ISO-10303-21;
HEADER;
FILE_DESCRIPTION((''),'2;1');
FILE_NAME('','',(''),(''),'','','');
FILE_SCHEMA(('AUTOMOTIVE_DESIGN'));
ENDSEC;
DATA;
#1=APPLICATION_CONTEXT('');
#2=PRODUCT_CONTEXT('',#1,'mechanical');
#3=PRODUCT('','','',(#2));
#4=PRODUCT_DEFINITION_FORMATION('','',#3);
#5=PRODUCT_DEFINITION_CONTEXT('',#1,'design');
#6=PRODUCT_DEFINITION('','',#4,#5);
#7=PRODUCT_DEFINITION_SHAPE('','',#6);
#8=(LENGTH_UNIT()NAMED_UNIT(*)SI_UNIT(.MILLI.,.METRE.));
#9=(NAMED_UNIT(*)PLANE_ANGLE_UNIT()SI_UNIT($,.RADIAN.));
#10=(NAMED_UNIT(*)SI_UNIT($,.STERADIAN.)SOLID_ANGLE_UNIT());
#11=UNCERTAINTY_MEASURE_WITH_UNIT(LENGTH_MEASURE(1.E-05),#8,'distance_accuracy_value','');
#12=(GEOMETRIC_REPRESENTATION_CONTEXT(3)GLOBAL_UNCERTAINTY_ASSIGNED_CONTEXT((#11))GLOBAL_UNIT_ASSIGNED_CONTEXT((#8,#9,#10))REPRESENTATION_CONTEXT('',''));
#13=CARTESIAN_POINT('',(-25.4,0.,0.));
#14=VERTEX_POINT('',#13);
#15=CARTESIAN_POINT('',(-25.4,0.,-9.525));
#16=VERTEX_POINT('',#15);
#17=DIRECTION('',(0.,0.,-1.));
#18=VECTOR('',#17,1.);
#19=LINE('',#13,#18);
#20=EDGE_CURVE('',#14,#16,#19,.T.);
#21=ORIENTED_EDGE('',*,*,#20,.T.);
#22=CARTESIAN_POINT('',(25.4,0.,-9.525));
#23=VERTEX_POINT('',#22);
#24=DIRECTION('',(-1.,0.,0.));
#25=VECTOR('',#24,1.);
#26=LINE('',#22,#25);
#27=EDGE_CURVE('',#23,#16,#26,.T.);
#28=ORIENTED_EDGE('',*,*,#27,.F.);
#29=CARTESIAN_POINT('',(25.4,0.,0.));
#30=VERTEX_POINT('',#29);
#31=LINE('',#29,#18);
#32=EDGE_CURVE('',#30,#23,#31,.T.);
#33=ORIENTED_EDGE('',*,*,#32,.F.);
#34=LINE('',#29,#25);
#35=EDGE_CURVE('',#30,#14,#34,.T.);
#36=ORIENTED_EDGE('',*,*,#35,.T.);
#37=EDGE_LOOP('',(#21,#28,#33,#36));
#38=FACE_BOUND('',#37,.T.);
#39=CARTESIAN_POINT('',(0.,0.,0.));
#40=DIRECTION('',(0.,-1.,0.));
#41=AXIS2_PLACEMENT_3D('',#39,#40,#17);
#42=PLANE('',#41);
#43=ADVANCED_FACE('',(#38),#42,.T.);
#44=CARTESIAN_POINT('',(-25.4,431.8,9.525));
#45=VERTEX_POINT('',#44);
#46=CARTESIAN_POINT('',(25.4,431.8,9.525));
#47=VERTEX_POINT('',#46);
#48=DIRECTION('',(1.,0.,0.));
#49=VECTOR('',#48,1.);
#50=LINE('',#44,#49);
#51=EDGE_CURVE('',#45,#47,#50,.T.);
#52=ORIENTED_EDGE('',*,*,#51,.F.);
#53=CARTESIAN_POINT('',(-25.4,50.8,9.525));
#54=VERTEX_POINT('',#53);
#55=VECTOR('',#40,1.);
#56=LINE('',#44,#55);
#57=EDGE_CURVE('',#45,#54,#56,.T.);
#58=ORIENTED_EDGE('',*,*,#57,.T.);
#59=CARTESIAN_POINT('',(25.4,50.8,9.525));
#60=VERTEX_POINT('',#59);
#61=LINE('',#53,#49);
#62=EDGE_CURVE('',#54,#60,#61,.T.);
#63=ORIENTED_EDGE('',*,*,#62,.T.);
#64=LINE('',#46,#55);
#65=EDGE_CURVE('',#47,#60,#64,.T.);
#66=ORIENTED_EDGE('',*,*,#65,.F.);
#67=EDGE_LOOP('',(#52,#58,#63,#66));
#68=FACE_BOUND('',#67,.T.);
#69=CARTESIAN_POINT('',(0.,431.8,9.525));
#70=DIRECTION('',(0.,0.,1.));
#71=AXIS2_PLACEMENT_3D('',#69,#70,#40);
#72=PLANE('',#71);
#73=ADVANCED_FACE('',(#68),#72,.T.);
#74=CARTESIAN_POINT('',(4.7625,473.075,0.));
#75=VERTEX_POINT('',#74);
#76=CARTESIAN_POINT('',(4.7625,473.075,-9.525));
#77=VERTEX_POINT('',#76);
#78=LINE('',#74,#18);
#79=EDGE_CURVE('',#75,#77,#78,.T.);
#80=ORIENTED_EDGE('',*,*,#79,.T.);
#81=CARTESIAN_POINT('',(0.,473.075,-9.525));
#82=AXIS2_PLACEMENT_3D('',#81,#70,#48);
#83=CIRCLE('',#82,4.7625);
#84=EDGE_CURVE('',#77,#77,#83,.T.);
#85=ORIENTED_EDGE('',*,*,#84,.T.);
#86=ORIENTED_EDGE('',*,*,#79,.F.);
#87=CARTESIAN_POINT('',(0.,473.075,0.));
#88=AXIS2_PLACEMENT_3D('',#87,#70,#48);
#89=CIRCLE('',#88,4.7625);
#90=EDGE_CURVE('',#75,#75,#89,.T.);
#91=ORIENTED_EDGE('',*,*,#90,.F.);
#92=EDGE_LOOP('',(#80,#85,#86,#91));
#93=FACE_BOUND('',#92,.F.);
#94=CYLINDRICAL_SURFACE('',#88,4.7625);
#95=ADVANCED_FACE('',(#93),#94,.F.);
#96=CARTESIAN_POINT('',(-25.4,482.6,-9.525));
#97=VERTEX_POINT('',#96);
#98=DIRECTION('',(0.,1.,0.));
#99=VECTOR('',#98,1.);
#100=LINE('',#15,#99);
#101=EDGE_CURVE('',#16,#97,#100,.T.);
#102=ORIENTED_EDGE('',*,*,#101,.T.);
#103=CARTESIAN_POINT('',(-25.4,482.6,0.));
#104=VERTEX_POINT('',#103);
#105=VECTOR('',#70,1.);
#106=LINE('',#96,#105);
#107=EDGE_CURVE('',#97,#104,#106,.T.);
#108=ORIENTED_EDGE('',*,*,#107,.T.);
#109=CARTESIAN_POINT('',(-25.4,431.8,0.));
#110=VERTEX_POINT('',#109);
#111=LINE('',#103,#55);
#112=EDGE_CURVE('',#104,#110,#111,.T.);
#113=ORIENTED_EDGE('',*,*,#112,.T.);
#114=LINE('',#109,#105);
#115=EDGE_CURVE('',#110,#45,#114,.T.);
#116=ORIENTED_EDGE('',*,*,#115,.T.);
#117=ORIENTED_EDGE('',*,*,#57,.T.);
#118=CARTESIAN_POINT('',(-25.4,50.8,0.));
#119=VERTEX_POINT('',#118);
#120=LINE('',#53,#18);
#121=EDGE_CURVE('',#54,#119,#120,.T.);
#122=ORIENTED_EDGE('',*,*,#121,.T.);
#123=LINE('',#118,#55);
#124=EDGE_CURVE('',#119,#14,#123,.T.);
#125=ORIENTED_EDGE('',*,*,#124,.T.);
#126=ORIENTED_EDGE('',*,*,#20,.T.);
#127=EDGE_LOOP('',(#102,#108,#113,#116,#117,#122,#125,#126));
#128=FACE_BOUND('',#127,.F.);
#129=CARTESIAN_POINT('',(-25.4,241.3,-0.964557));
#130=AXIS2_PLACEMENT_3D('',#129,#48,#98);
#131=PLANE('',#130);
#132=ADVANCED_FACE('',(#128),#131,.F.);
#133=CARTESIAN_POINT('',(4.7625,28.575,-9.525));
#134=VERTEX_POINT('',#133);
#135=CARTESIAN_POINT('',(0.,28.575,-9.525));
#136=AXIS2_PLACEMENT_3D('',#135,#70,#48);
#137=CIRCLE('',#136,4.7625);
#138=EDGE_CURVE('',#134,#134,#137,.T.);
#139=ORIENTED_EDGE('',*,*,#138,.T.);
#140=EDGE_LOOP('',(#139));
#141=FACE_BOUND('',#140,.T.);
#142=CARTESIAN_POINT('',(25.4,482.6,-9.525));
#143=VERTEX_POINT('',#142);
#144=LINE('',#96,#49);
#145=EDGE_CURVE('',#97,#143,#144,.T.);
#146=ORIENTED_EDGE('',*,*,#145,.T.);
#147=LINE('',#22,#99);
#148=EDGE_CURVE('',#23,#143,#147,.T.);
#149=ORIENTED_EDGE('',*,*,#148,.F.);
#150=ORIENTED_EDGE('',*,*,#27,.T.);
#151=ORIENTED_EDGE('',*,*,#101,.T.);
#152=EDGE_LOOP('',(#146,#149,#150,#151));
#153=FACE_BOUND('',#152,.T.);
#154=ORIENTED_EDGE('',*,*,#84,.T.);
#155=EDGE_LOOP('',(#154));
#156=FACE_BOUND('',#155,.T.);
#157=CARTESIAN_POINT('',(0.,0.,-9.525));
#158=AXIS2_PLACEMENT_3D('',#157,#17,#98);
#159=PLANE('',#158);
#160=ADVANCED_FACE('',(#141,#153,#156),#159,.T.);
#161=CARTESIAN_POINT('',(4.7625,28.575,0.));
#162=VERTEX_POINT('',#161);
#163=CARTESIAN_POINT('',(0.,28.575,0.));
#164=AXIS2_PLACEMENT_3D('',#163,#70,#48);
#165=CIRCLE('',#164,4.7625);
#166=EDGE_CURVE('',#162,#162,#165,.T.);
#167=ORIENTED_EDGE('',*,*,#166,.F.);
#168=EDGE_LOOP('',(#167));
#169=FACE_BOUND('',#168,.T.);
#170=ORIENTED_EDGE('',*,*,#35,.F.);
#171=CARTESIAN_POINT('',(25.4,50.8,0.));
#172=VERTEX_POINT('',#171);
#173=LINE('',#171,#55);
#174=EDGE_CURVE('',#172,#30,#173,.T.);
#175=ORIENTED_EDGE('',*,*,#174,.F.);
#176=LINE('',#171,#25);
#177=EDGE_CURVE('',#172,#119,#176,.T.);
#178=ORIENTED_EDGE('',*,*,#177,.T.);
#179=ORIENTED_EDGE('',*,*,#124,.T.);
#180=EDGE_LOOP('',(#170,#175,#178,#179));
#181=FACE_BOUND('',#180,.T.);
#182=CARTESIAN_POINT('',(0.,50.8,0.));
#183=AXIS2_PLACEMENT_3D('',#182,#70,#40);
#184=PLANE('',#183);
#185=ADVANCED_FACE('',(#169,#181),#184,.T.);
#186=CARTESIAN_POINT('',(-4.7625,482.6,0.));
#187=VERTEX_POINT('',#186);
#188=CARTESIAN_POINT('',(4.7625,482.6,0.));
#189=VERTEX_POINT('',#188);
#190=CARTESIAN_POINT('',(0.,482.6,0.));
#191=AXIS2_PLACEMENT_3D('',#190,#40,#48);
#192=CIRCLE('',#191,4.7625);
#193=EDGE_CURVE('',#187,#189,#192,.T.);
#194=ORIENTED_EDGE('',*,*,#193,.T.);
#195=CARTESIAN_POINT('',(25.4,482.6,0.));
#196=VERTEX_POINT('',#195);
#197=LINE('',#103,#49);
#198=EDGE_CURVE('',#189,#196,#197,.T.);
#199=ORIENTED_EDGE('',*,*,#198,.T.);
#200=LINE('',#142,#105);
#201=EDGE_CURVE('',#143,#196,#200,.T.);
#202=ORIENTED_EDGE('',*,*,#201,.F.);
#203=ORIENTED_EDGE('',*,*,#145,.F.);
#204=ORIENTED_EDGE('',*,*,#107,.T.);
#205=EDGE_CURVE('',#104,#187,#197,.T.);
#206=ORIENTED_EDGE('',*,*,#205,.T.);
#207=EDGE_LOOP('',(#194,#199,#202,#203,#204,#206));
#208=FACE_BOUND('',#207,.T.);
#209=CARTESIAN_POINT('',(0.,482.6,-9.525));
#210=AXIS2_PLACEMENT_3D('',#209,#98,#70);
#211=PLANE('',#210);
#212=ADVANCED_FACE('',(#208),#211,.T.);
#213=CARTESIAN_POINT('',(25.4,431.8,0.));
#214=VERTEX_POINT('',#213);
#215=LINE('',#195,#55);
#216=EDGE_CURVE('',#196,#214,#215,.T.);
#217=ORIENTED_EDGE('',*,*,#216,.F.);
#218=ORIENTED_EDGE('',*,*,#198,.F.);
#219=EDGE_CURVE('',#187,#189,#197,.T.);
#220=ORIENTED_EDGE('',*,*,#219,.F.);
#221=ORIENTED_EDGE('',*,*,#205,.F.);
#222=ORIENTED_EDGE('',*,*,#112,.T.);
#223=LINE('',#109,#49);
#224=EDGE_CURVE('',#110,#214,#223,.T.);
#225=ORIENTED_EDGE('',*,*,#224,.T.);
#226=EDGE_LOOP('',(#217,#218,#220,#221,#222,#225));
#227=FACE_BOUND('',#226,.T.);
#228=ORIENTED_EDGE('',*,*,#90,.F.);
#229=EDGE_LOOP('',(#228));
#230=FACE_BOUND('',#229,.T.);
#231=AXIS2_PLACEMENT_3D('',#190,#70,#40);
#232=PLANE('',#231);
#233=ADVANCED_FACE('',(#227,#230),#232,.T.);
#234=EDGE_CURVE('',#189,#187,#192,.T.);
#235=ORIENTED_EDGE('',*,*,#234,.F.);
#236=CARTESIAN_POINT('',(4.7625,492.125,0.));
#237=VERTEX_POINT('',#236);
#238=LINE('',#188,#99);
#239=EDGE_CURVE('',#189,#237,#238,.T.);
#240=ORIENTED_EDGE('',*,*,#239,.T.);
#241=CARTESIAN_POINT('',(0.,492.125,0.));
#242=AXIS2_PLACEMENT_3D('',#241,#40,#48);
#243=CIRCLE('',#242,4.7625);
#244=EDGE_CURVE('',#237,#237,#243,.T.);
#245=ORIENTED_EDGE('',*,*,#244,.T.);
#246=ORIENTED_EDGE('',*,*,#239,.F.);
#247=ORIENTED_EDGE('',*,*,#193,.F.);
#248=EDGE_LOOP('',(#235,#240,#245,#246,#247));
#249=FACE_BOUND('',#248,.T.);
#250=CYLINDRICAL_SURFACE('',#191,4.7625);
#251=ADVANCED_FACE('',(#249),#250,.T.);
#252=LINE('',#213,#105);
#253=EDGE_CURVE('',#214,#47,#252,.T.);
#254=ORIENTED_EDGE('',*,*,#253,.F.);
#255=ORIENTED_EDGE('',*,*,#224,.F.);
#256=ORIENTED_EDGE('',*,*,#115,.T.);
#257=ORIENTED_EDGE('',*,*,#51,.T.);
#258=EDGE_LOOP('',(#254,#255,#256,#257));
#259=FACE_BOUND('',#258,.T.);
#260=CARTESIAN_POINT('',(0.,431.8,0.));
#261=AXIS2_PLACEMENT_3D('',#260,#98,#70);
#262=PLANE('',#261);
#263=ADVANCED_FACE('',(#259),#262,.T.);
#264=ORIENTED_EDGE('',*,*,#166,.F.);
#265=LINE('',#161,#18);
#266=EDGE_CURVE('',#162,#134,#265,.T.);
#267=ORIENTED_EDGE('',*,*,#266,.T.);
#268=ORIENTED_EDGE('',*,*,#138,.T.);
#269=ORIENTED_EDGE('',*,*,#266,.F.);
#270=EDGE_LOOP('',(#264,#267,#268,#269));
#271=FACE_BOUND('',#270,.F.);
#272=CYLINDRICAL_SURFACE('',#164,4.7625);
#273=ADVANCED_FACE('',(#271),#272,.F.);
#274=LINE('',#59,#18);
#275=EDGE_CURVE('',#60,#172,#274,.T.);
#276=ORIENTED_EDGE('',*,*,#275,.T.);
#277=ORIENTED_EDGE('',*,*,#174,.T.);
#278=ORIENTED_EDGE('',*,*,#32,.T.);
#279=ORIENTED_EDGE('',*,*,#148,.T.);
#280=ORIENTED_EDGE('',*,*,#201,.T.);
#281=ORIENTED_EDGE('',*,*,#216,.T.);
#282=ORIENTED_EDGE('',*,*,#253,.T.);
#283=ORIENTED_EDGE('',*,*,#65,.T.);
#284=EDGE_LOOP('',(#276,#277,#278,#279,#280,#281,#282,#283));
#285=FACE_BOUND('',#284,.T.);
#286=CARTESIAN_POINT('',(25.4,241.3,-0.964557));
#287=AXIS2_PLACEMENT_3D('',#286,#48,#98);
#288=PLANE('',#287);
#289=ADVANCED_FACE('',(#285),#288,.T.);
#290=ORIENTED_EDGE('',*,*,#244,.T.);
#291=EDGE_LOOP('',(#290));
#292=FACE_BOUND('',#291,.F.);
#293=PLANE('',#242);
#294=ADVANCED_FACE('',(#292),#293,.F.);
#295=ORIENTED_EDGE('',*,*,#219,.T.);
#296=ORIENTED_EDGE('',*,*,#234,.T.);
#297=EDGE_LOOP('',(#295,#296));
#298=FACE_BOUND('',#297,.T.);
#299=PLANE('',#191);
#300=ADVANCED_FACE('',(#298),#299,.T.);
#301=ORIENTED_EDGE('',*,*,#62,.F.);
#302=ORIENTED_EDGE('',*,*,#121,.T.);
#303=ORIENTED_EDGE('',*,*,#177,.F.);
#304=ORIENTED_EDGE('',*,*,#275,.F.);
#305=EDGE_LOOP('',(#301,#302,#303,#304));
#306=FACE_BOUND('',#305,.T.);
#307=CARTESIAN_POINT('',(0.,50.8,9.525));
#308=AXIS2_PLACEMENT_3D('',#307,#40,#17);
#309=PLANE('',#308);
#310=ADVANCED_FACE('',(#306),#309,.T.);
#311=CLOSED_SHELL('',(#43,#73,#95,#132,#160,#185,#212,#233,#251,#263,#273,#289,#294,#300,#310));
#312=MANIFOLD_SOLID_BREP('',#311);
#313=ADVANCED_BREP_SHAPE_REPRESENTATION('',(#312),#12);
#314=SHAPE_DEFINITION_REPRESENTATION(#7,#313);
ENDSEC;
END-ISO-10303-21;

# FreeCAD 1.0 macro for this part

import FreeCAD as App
import Part
import Sketcher

V = App.Vector
Q = App.Units.Quantity

doc = App.newDocument("Part")
params = doc.addObject("Spreadsheet::Sheet", "Params")
for row, (alias, value) in enumerate([
    ("sketch1_width", "19 in"),
    ("sketch1_width2", "2 in"),
    ("sketch1_height", "0.375 in"),
    ("pad1_length", "2 in"),
    ("sketch2_diameter", "0.375 in"),
    ("pocket1_length", "1 in"),
    ("sketch3_diameter", "0.375 in"),
    ("pad2_length", "0.375 in"),
], start=1):
    params.set(f"A{row}", alias)
    params.set(f"B{row}", "=" + value)
    params.setAlias(f"B{row}", alias)

body = doc.addObject("PartDesign::Body", "Body")

# Sketch on YZ plane
sketch1 = body.newObject("Sketcher::SketchObject", "Sketch")
sketch1.AttachmentSupport = (doc.getObject("YZ_Plane"), [""])
sketch1.MapMode = "FlatFace"
sketch1.addGeometry([
    Part.LineSegment(V(0, -10, 0), V(483, -10, 0)),  # 0
    Part.LineSegment(V(483, -10, 0), V(483, 0, 0)),  # 1
    Part.LineSegment(V(483, 0, 0), V(432, 0, 0)),  # 2
    Part.LineSegment(V(432, 0, 0), V(432, 10, 0)),  # 3
    Part.LineSegment(V(432, 10, 0), V(51, 10, 0)),  # 4
    Part.LineSegment(V(51, 10, 0), V(51, 0, 0)),  # 5
    Part.LineSegment(V(51, 0, 0), V(0, 0, 0)),  # 6
    Part.LineSegment(V(0, 0, 0), V(0, -10, 0)),  # 7
], False)
sketch1.addConstraint([
    Sketcher.Constraint("Coincident", 0, 2, 1, 1),
    Sketcher.Constraint("Coincident", 1, 2, 2, 1),
    Sketcher.Constraint("Coincident", 2, 2, 3, 1),
    Sketcher.Constraint("Coincident", 3, 2, 4, 1),
    Sketcher.Constraint("Coincident", 4, 2, 5, 1),
    Sketcher.Constraint("Coincident", 5, 2, 6, 1),
    Sketcher.Constraint("Coincident", 6, 2, 7, 1),
    Sketcher.Constraint("Coincident", 7, 2, 0, 1),
    Sketcher.Constraint("Horizontal", 0),
    Sketcher.Constraint("Vertical", 1),
    Sketcher.Constraint("Horizontal", 2),
    Sketcher.Constraint("Vertical", 3),
    Sketcher.Constraint("Horizontal", 4),
    Sketcher.Constraint("Vertical", 5),
    Sketcher.Constraint("Horizontal", 6),
    Sketcher.Constraint("Vertical", 7),
    Sketcher.Constraint("Coincident", 6, 2, -1, 1),
    Sketcher.Constraint("PointOnObject", 1, 2, -1),
    Sketcher.Constraint("Equal", 2, 6),
    Sketcher.Constraint("Equal", 1, 3),
    Sketcher.Constraint("DistanceX", 0, 1, 0, 2, Q("19 in")),
    Sketcher.Constraint("DistanceX", 2, 2, 2, 1, Q("2 in")),
    Sketcher.Constraint("DistanceY", 1, 1, 1, 2, Q("0.375 in")),
])
sketch1.setExpression("Constraints[20]", "Params.sketch1_width")
sketch1.setExpression("Constraints[21]", "Params.sketch1_width2")
sketch1.setExpression("Constraints[22]", "Params.sketch1_height")
pad1 = body.newObject("PartDesign::Pad", "Pad")
pad1.Profile = sketch1
pad1.setExpression("Length", "Params.pad1_length")
pad1.Midplane = True

# Sketch on XY plane
sketch2 = body.newObject("Sketcher::SketchObject", "Sketch001")
sketch2.AttachmentSupport = (doc.getObject("XY_Plane"), [""])
sketch2.MapMode = "FlatFace"
sketch2.addGeometry([
    Part.Circle(V(0, 28.6, 0), V(0, 0, 1), 4.8),
    Part.Circle(V(0, 473.1, 0), V(0, 0, 1), 4.8),
], False)
sketch2.addConstraint([
    Sketcher.Constraint("Equal", 0, 1),
    Sketcher.Constraint("PointOnObject", 0, 3, -2),
    Sketcher.Constraint("PointOnObject", 1, 3, -2),
    Sketcher.Constraint("Diameter", 0, Q("0.375 in")),
    Sketcher.Constraint("DistanceY", 0, 3, 1, 3, Q("17.5 in")),
    Sketcher.Constraint("DistanceY", -1, 1, 0, 3, Q("1.125 in")),
])
sketch2.setExpression("Constraints[3]", "Params.sketch2_diameter")
pocket1 = body.newObject("PartDesign::Pocket", "Pocket")
pocket1.Profile = sketch2
pocket1.setExpression("Length", "Params.pocket1_length")

# Sketch on XZ plane
sketch3 = body.newObject("Sketcher::SketchObject", "Sketch002")
sketch3.AttachmentSupport = (doc.getObject("XZ_Plane"), [""])
sketch3.MapMode = "FlatFace"
sketch3.AttachmentOffset = App.Placement(V(0, 0, -19 * 25.4), App.Rotation())
sketch3.addGeometry(Part.Circle(V(0, 0, 0), V(0, 0, 1), 4.8), False)
sketch3.addConstraint([
    Sketcher.Constraint("Coincident", 0, 3, -1, 1),
    Sketcher.Constraint("Diameter", 0, Q("0.375 in")),
])
sketch3.setExpression("Constraints[1]", "Params.sketch3_diameter")
pad2 = body.newObject("PartDesign::Pad", "Pad001")
pad2.Profile = sketch3
pad2.setExpression("Length", "Params.pad2_length")
pad2.Reversed = True

doc.recompute()
